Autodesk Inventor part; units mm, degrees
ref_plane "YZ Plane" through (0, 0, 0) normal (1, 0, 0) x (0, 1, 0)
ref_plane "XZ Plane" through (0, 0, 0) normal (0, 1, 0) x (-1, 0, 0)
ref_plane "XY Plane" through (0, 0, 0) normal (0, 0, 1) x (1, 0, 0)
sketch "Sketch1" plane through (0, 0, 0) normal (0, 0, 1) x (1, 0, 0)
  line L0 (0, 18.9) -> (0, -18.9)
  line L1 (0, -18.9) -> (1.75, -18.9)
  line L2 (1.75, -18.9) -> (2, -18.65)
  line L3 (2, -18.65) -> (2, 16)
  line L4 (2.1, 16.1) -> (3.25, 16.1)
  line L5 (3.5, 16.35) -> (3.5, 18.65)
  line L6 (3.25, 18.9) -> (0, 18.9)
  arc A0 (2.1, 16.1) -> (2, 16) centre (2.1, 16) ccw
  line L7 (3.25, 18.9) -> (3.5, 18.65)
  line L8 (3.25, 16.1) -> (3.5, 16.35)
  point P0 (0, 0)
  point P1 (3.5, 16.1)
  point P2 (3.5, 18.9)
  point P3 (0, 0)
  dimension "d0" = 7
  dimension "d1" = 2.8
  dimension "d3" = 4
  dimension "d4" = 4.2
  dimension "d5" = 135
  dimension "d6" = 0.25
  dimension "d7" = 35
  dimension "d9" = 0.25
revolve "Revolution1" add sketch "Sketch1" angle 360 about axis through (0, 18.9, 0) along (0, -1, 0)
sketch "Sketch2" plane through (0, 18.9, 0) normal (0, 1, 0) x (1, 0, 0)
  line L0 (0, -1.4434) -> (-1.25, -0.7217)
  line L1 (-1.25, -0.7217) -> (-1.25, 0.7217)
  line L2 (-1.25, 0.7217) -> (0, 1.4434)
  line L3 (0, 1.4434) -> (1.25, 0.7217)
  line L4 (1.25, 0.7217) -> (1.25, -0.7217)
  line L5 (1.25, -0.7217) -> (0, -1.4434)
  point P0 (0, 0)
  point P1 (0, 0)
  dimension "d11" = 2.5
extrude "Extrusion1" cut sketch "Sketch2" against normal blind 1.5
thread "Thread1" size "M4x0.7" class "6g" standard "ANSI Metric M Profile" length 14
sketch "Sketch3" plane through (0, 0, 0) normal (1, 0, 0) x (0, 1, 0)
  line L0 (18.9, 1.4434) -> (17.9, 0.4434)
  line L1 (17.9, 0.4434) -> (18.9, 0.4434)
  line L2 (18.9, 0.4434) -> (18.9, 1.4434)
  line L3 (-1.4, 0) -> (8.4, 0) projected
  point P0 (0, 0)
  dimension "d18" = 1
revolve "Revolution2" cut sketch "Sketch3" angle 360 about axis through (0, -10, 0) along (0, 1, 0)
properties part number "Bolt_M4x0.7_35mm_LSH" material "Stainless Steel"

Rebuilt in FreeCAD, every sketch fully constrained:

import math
import FreeCAD as App
import Part
import Sketcher
from FreeCAD import Vector
Q = App.Units.Quantity


def add_polygon(sketch, points):
    """Adds a closed chain of lines whose ends are joined by coincident constraints."""
    first, n = sketch.GeometryCount, len(points)
    for a, b in zip(points, points[1:] + points[:1]):
        sketch.addGeometry(Part.LineSegment(App.Vector(*a, 0), App.Vector(*b, 0)), False)
    for i in range(n):
        sketch.addConstraint(Sketcher.Constraint("Coincident", first + i, 2, first + (i + 1) % n, 1))

doc = App.newDocument("Part")
body = doc.addObject("PartDesign::Body", "Body")

sketch1 = doc.addObject("Sketcher::SketchObject", "Sketch")
body.addObject(sketch1)
sketch1.AttachmentSupport = (doc.XY_Plane, [""])
sketch1.MapMode = "FlatFace"
sketch1.addGeometry([
    Part.LineSegment(Vector(3.25, 18.9, 0), Vector(0, 18.9, 0)),
    Part.LineSegment(Vector(0, 18.9, 0), Vector(0, -18.9, 0)),
    Part.LineSegment(Vector(0, -18.9, 0), Vector(1.75, -18.9, 0)),
    Part.LineSegment(Vector(1.75, -18.9, 0), Vector(2, -18.65, 0)),
    Part.LineSegment(Vector(2, -18.65, 0), Vector(2, 16, 0)),
    Part.ArcOfCircle(Part.Circle(Vector(2.1, 16, 0), Vector(0, 0, 1), 0.1), math.radians(90), math.radians(180)),
    Part.LineSegment(Vector(2.1, 16.1, 0), Vector(3.25, 16.1, 0)),
    Part.LineSegment(Vector(3.25, 16.1, 0), Vector(3.5, 16.35, 0)),
    Part.LineSegment(Vector(3.5, 16.35, 0), Vector(3.5, 18.65, 0)),
    Part.LineSegment(Vector(3.5, 18.65, 0), Vector(3.25, 18.9, 0)),
], False)
sketch1.addConstraint([
    Sketcher.Constraint("Coincident", 0, 2, 1, 1),
    Sketcher.Constraint("Coincident", 1, 2, 2, 1),
    Sketcher.Constraint("Coincident", 2, 2, 3, 1),
    Sketcher.Constraint("Coincident", 3, 2, 4, 1),
    Sketcher.Constraint("Tangent", 4, 2, 5, 2),
    Sketcher.Constraint("Tangent", 5, 1, 6, 1),
    Sketcher.Constraint("Coincident", 6, 2, 7, 1),
    Sketcher.Constraint("Coincident", 7, 2, 8, 1),
    Sketcher.Constraint("Coincident", 8, 2, 9, 1),
    Sketcher.Constraint("Coincident", 9, 2, 0, 1),
    Sketcher.Constraint("Horizontal", 0),
    Sketcher.Constraint("Vertical", 1),
    Sketcher.Constraint("Horizontal", 2),
    Sketcher.Constraint("Vertical", 4),
    Sketcher.Constraint("Horizontal", 6),
    Sketcher.Constraint("Vertical", 8),
    Sketcher.Constraint("Symmetric", 0, 2, 1, 2, -1, 1),
    Sketcher.Constraint("Parallel", 3, 7),
    Sketcher.Constraint("Perpendicular", 7, 9),
    Sketcher.Constraint("Vertical", 6, 2, 9, 2),
    Sketcher.Constraint("Equal", 3, 7),
    Sketcher.Constraint("Equal", 7, 9),
    Sketcher.Constraint("DistanceY", 2, 2, 5, 1, 35.0),
    Sketcher.Constraint("Radius", 5, 0.1),
    Sketcher.Constraint("DistanceY", 5, 1, 0, 2, 2.8),
    Sketcher.Constraint("DistanceX", 2, 2, 3, 2, 0.25),
    Sketcher.Constraint("DistanceX", -1, 1, 3, 2, 2.0),
    Sketcher.Constraint("DistanceX", 0, 2, 0, 1, 3.25),
])
revolution = doc.addObject("PartDesign::Revolution", "Revolution")
body.addObject(revolution)
revolution.Profile = sketch1
revolution.ReferenceAxis = (sketch1, ["V_Axis"])
revolution.Angle = 360

sketch2 = doc.addObject("Sketcher::SketchObject", "Sketch001")
body.addObject(sketch2)
sketch2.AttachmentSupport = (doc.XZ_Plane, [""])
sketch2.MapMode = "FlatFace"
sketch2.AttachmentOffset = App.Placement(Vector(0, 0, -18.9), App.Rotation())
add_polygon(sketch2, [(-1.2, 0.7), (0, 1.4), (1.2, 0.7), (1.2, -0.7), (0, -1.4), (-1.2, -0.7)])
sketch2.addConstraint([
    Sketcher.Constraint("Vertical", 2),
    Sketcher.Constraint("Vertical", 5),
    Sketcher.Constraint("Symmetric", 0, 2, 3, 2, -1, 1),
    Sketcher.Constraint("Symmetric", 1, 2, 4, 2, -1, 1),
    Sketcher.Constraint("PointOnObject", 0, 2, -2),
    Sketcher.Constraint("Parallel", 0, 3),
    Sketcher.Constraint("Horizontal", 2, 2, 4, 2),
    Sketcher.Constraint("DistanceX", 4, 2, 2, 2, 2.5),
    Sketcher.Constraint("Angle", 0, Q("30.0004 deg")),
    Sketcher.Constraint("DistanceY", 2, 2, 2, 1, 1.4434),
])
pocket1 = doc.addObject("PartDesign::Pocket", "Pocket")
body.addObject(pocket1)
pocket1.Profile = sketch2
pocket1.Length = 1.5
pocket1.Reversed = True

sketch3 = doc.addObject("Sketcher::SketchObject", "Sketch002")
body.addObject(sketch3)
sketch3.AttachmentSupport = (doc.YZ_Plane, [""])
sketch3.MapMode = "FlatFace"
add_polygon(sketch3, [(18.9, 0.4), (18.9, 1.4), (17.9, 0.4)])
sketch3.addConstraint([
    Sketcher.Constraint("Vertical", 0),
    Sketcher.Constraint("Horizontal", 2),
    Sketcher.Constraint("Equal", 2, 0),
    Sketcher.Constraint("DistanceX", 2, 1, 2, 2, 1.0),
    Sketcher.Constraint("DistanceX", -1, 1, 0, 2, 18.9),
    Sketcher.Constraint("DistanceY", -1, 1, 0, 2, 1.4434),
])
groove = doc.addObject("PartDesign::Groove", "Groove")
body.addObject(groove)
groove.Profile = sketch3
groove.ReferenceAxis = (sketch3, ["H_Axis"])
groove.Angle = 360

doc.recompute()
